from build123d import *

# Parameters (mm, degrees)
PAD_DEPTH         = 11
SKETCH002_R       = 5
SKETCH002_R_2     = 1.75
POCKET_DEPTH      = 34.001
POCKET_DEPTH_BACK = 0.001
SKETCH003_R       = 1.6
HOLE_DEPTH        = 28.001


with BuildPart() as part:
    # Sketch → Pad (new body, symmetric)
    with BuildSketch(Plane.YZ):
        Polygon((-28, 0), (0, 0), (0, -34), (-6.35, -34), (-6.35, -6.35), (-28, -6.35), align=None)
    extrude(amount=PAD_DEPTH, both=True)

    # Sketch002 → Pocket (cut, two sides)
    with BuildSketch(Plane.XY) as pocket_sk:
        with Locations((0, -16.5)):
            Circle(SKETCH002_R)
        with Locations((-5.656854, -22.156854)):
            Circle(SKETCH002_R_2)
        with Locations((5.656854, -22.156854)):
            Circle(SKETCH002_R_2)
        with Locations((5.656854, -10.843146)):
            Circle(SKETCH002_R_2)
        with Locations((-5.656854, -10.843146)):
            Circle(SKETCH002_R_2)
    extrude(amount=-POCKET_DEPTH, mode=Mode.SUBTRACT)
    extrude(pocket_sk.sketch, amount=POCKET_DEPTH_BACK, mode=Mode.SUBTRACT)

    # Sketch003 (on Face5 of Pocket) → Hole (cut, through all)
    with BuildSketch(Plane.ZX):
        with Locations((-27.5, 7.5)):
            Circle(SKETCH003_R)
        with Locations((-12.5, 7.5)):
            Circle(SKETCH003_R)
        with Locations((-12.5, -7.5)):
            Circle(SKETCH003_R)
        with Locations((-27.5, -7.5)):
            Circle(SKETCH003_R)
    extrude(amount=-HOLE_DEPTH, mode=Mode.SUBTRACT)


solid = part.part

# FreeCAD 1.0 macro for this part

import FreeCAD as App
import Part
import Sketcher

V = App.Vector


def add_polygon(sketch, points):
    """Adds a closed chain of lines whose ends are joined by coincident constraints."""
    first, n = sketch.GeometryCount, len(points)
    for a, b in zip(points, points[1:] + points[:1]):
        sketch.addGeometry(Part.LineSegment(App.Vector(*a, 0), App.Vector(*b, 0)), False)
    for i in range(n):
        sketch.addConstraint(Sketcher.Constraint("Coincident", first + i, 2, first + (i + 1) % n, 1))

doc = App.newDocument("Part")
body = doc.addObject("PartDesign::Body", "Body")

# Sketch on YZ plane
sketch1 = body.newObject("Sketcher::SketchObject", "Sketch")
sketch1.AttachmentSupport = (doc.getObject("YZ_Plane"), [""])
sketch1.MapMode = "FlatFace"
add_polygon(sketch1, [(0, 0), (-28, 0), (-28, -6.35), (-6.35, -6.35), (-6.35, -34), (0, -34)])  # lines 0-5
sketch1.addConstraint(Sketcher.Constraint("Horizontal", 0))
sketch1.addConstraint(Sketcher.Constraint("Vertical", 1))
sketch1.addConstraint(Sketcher.Constraint("Horizontal", 2))
sketch1.addConstraint(Sketcher.Constraint("Vertical", 3))
sketch1.addConstraint(Sketcher.Constraint("Horizontal", 4))
sketch1.addConstraint(Sketcher.Constraint("Vertical", 5))
sketch1.addConstraint(Sketcher.Constraint("Coincident", 5, 2, -1, 1))
sketch1.addConstraint(Sketcher.Constraint("Equal", 4, 1))
sketch1.addConstraint(Sketcher.Constraint("DistanceX", 0, 2, 0, 1, 28.0))
sketch1.addConstraint(Sketcher.Constraint("DistanceY", 5, 1, 5, 2, 34.0))
sketch1.addConstraint(Sketcher.Constraint("DistanceX", 2, 1, 2, 2, 21.65))
pad1 = body.newObject("PartDesign::Pad", "Pad")
pad1.Profile = sketch1
pad1.Length = 22
pad1.Midplane = True

# Sketch on XY plane
sketch2 = body.newObject("Sketcher::SketchObject", "Sketch001")
sketch2.AttachmentSupport = (doc.getObject("XY_Plane"), [""])
sketch2.MapMode = "FlatFace"
sketch2.addGeometry(Part.Circle(V(0, -16.5, 0), V(0, 0, 1), 5), False)
sketch2.addGeometry(Part.Circle(V(-5.656854, -22.156854, 0), V(0, 0, 1), 1.75), False)
sketch2.addGeometry(Part.Circle(V(5.656854, -22.156854, 0), V(0, 0, 1), 1.75), False)
sketch2.addGeometry(Part.Circle(V(5.656854, -10.843146, 0), V(0, 0, 1), 1.75), False)
sketch2.addGeometry(Part.Circle(V(-5.656854, -10.843146, 0), V(0, 0, 1), 1.75), False)
sketch2.addConstraint(Sketcher.Constraint("Equal", 1, 2))
sketch2.addConstraint(Sketcher.Constraint("Equal", 2, 3))
sketch2.addConstraint(Sketcher.Constraint("Equal", 3, 4))
sketch2.addConstraint(Sketcher.Constraint("Symmetric", 1, 3, 2, 3, -2))
sketch2.addConstraint(Sketcher.Constraint("Symmetric", 3, 3, 4, 3, -2))
sketch2.addConstraint(Sketcher.Constraint("PointOnObject", 0, 3, -2))
sketch2.addConstraint(Sketcher.Constraint("Vertical", 2, 3, 3, 3))
sketch2.addConstraint(Sketcher.Constraint("Diameter", 0, 10.0))
sketch2.addConstraint(Sketcher.Constraint("Diameter", 1, 3.5))
sketch2.addConstraint(Sketcher.Constraint("DistanceY", 0, 3, -1, 1, 16.5))
sketch2.addConstraint(Sketcher.Constraint("DistanceX", 1, 3, -1, 1, 5.656854))
sketch2.addConstraint(Sketcher.Constraint("DistanceY", 1, 3, -1, 1, 22.156854))
sketch2.addConstraint(Sketcher.Constraint("DistanceY", 3, 3, -1, 1, 10.843146))
pocket1 = body.newObject("PartDesign::Pocket", "Pocket")
pocket1.Profile = sketch2
pocket1.Type = "ThroughAll"
pocket1.Midplane = True

# Sketch on XZ plane
sketch3 = body.newObject("Sketcher::SketchObject", "Sketch002")
sketch3.AttachmentSupport = (doc.getObject("XZ_Plane"), [""])
sketch3.MapMode = "FlatFace"
sketch3.addGeometry(Part.Circle(V(7.5, -27.5, 0), V(0, 0, 1), 1.6), False)
sketch3.addGeometry(Part.Circle(V(7.5, -12.5, 0), V(0, 0, 1), 1.6), False)
sketch3.addGeometry(Part.Circle(V(-7.5, -12.5, 0), V(0, 0, 1), 1.6), False)
sketch3.addGeometry(Part.Circle(V(-7.5, -27.5, 0), V(0, 0, 1), 1.6), False)
sketch3.addConstraint(Sketcher.Constraint("Equal", 0, 1))
sketch3.addConstraint(Sketcher.Constraint("Equal", 1, 2))
sketch3.addConstraint(Sketcher.Constraint("Equal", 2, 3))
sketch3.addConstraint(Sketcher.Constraint("Symmetric", 1, 3, 2, 3, -2))
sketch3.addConstraint(Sketcher.Constraint("Symmetric", 0, 3, 3, 3, -2))
sketch3.addConstraint(Sketcher.Constraint("Vertical", 0, 3, 1, 3))
sketch3.addConstraint(Sketcher.Constraint("Diameter", 0, 3.2))
sketch3.addConstraint(Sketcher.Constraint("DistanceY", 0, 3, 1, 3, 15.0))
sketch3.addConstraint(Sketcher.Constraint("DistanceX", 2, 3, 1, 3, 15.0))
sketch3.addConstraint(Sketcher.Constraint("DistanceY", 0, 3, -1, 1, 27.5))
pocket2 = body.newObject("PartDesign::Pocket", "Pocket001")
pocket2.Profile = sketch3
pocket2.Type = "ThroughAll"
pocket2.Reversed = True

doc.recompute()
